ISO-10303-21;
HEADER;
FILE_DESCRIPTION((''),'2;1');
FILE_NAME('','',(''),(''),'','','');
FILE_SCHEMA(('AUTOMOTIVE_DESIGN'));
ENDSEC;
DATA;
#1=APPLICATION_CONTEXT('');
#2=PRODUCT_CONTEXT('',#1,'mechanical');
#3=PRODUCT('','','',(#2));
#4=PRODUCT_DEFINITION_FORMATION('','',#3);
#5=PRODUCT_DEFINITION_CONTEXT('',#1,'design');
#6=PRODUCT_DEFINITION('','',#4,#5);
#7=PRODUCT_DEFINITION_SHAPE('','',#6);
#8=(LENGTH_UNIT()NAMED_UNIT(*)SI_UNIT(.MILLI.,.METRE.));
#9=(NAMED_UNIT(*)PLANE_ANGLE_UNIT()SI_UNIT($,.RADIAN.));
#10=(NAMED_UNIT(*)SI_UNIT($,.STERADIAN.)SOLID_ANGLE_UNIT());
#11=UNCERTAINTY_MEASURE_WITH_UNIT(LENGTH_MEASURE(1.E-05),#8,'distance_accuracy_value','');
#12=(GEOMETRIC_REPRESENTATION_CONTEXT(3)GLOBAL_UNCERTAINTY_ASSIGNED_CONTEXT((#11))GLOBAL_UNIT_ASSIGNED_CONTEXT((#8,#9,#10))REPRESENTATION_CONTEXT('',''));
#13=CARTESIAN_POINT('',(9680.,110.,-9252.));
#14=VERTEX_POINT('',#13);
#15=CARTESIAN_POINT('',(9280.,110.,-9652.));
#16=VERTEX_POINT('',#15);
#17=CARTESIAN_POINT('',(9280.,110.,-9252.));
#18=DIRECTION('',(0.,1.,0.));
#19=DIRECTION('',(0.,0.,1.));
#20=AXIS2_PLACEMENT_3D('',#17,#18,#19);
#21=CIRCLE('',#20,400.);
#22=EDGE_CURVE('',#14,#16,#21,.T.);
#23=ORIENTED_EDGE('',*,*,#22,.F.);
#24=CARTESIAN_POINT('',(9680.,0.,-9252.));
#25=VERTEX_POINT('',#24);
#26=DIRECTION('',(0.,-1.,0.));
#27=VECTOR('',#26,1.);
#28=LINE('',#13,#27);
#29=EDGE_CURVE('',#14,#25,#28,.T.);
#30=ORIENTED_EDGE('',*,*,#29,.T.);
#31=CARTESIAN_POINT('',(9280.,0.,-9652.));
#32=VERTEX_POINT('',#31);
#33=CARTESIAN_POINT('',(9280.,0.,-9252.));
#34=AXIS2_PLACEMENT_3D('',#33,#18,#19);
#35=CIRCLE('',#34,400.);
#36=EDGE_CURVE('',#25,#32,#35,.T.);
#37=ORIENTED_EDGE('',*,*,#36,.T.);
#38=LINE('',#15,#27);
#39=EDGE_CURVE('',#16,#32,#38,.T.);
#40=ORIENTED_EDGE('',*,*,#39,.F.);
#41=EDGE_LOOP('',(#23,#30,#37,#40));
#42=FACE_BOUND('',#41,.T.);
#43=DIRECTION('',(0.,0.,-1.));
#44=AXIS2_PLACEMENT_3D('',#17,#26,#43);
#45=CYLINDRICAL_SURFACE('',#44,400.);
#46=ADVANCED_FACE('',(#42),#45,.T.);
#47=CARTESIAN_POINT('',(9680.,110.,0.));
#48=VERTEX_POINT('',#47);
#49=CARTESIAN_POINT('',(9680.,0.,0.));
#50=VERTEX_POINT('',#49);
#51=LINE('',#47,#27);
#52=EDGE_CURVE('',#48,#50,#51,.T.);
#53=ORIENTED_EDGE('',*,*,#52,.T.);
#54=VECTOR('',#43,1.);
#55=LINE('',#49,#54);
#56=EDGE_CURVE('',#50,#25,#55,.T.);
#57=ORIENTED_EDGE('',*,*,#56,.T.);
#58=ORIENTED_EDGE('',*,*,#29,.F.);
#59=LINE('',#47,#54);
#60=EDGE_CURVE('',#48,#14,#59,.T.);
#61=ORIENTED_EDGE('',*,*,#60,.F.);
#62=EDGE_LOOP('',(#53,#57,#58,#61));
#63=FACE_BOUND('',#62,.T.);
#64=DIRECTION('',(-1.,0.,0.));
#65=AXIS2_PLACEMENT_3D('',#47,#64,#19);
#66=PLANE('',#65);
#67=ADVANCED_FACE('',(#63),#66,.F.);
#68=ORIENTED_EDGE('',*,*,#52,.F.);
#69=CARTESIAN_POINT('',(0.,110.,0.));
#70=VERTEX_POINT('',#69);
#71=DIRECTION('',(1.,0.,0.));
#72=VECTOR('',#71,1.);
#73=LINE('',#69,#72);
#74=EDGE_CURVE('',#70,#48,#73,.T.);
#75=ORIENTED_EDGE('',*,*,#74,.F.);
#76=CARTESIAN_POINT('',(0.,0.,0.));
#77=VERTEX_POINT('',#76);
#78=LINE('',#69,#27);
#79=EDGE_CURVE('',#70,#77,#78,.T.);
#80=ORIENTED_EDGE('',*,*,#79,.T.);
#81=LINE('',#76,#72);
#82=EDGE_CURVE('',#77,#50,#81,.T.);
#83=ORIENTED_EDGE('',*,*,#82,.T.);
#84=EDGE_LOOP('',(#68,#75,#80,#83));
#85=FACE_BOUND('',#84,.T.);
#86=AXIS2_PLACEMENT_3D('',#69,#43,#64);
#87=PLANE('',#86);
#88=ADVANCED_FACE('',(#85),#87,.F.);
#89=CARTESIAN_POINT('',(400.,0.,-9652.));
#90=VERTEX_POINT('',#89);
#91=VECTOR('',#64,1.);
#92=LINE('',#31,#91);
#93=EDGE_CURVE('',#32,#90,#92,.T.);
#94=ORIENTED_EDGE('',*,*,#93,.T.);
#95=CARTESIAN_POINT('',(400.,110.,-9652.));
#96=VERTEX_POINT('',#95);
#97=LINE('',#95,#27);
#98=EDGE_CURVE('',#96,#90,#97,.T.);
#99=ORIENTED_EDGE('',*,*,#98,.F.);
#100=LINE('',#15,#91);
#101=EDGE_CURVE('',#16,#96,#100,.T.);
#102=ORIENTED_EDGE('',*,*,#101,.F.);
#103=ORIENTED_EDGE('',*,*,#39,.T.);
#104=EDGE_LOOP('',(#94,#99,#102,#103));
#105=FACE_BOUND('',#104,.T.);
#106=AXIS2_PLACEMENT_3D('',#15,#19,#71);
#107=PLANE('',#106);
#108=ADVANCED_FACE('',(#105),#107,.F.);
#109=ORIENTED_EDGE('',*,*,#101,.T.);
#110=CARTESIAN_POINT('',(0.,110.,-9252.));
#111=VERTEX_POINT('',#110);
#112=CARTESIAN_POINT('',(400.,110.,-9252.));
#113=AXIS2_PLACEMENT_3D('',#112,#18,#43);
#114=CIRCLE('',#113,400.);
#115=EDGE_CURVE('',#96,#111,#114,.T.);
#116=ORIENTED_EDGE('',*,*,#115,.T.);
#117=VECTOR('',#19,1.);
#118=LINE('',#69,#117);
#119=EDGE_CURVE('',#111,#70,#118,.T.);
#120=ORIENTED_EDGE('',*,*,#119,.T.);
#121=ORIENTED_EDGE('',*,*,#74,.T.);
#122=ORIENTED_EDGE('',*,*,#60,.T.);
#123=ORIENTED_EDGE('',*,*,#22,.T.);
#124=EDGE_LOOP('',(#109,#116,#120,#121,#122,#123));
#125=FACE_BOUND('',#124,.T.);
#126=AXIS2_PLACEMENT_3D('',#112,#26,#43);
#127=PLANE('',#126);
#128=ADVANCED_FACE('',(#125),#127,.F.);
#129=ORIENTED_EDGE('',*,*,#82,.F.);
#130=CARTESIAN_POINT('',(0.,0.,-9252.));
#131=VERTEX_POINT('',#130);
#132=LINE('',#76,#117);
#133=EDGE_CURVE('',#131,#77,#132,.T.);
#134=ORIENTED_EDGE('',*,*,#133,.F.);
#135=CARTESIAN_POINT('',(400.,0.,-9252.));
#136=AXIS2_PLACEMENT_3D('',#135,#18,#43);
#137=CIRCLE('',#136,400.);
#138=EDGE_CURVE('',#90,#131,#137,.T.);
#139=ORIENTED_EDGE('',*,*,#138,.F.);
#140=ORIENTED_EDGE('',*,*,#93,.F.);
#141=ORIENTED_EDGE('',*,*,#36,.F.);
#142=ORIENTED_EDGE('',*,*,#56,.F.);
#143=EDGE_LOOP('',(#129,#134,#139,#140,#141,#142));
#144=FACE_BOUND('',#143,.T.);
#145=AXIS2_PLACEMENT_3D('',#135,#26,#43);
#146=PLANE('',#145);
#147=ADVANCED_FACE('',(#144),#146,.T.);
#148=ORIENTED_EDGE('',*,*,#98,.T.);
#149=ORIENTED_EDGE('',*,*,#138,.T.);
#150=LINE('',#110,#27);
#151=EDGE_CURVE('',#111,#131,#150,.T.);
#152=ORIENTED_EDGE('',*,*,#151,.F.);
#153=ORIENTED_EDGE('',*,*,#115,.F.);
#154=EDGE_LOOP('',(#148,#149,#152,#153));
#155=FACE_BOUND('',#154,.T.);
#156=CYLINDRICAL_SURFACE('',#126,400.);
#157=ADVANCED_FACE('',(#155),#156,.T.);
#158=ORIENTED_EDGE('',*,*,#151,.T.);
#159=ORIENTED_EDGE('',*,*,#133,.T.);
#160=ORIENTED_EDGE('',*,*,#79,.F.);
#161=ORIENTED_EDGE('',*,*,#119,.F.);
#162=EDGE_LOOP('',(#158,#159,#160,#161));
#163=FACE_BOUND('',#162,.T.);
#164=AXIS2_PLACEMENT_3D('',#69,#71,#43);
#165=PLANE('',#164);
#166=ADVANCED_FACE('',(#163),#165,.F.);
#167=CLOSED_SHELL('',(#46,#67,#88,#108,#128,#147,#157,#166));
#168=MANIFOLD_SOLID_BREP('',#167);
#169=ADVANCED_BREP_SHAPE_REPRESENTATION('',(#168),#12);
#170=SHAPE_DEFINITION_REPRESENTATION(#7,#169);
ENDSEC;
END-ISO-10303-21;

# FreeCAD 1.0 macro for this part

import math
import FreeCAD as App
import Part
import Sketcher
from FreeCAD import Vector

doc = App.newDocument("Part")
body = doc.addObject("PartDesign::Body", "Body")

sketch1 = body.newObject("Sketcher::SketchObject", "Sketch")
sketch1.AttachmentSupport = (doc.getObject("XZ_Plane"), [""])
sketch1.MapMode = "FlatFace"
sketch1.addGeometry([
    Part.LineSegment(Vector(0, 0, 0), Vector(9680, 0, 0)),
    Part.LineSegment(Vector(9680, 0, 0), Vector(9680, -9252, 0)),
    Part.ArcOfCircle(Part.Circle(Vector(9280, -9252, 0), Vector(0, 0, 1), 400), math.radians(-90), math.radians(0)),
    Part.LineSegment(Vector(9280, -9652, 0), Vector(400, -9652, 0)),
    Part.ArcOfCircle(Part.Circle(Vector(400, -9252, 0), Vector(0, 0, 1), 400), math.radians(180), math.radians(270)),
    Part.LineSegment(Vector(0, -9252, 0), Vector(0, 0, 0)),
], False)
sketch1.addConstraint([
    Sketcher.Constraint("Coincident", 0, 2, 1, 1),
    Sketcher.Constraint("Tangent", 1, 2, 2, 2),
    Sketcher.Constraint("Tangent", 2, 1, 3, 1),
    Sketcher.Constraint("Tangent", 3, 2, 4, 2),
    Sketcher.Constraint("Tangent", 4, 1, 5, 1),
    Sketcher.Constraint("Coincident", 5, 2, 0, 1),
    Sketcher.Constraint("Horizontal", 0),
    Sketcher.Constraint("Vertical", 1),
    Sketcher.Constraint("Horizontal", 3),
    Sketcher.Constraint("Vertical", 5),
    Sketcher.Constraint("Coincident", 5, 2, -1, 1),
    Sketcher.Constraint("Equal", 2, 4),
    Sketcher.Constraint("Radius", 2, 400.0),
    Sketcher.Constraint("DistanceX", 0, 1, 0, 2, 9680.0),
    Sketcher.Constraint("DistanceY", 1, 2, 1, 1, 9252.0),
])
pad1 = body.newObject("PartDesign::Pad", "Pad")
pad1.Profile = sketch1
pad1.Length = 110
pad1.Reversed = True

doc.recompute()
